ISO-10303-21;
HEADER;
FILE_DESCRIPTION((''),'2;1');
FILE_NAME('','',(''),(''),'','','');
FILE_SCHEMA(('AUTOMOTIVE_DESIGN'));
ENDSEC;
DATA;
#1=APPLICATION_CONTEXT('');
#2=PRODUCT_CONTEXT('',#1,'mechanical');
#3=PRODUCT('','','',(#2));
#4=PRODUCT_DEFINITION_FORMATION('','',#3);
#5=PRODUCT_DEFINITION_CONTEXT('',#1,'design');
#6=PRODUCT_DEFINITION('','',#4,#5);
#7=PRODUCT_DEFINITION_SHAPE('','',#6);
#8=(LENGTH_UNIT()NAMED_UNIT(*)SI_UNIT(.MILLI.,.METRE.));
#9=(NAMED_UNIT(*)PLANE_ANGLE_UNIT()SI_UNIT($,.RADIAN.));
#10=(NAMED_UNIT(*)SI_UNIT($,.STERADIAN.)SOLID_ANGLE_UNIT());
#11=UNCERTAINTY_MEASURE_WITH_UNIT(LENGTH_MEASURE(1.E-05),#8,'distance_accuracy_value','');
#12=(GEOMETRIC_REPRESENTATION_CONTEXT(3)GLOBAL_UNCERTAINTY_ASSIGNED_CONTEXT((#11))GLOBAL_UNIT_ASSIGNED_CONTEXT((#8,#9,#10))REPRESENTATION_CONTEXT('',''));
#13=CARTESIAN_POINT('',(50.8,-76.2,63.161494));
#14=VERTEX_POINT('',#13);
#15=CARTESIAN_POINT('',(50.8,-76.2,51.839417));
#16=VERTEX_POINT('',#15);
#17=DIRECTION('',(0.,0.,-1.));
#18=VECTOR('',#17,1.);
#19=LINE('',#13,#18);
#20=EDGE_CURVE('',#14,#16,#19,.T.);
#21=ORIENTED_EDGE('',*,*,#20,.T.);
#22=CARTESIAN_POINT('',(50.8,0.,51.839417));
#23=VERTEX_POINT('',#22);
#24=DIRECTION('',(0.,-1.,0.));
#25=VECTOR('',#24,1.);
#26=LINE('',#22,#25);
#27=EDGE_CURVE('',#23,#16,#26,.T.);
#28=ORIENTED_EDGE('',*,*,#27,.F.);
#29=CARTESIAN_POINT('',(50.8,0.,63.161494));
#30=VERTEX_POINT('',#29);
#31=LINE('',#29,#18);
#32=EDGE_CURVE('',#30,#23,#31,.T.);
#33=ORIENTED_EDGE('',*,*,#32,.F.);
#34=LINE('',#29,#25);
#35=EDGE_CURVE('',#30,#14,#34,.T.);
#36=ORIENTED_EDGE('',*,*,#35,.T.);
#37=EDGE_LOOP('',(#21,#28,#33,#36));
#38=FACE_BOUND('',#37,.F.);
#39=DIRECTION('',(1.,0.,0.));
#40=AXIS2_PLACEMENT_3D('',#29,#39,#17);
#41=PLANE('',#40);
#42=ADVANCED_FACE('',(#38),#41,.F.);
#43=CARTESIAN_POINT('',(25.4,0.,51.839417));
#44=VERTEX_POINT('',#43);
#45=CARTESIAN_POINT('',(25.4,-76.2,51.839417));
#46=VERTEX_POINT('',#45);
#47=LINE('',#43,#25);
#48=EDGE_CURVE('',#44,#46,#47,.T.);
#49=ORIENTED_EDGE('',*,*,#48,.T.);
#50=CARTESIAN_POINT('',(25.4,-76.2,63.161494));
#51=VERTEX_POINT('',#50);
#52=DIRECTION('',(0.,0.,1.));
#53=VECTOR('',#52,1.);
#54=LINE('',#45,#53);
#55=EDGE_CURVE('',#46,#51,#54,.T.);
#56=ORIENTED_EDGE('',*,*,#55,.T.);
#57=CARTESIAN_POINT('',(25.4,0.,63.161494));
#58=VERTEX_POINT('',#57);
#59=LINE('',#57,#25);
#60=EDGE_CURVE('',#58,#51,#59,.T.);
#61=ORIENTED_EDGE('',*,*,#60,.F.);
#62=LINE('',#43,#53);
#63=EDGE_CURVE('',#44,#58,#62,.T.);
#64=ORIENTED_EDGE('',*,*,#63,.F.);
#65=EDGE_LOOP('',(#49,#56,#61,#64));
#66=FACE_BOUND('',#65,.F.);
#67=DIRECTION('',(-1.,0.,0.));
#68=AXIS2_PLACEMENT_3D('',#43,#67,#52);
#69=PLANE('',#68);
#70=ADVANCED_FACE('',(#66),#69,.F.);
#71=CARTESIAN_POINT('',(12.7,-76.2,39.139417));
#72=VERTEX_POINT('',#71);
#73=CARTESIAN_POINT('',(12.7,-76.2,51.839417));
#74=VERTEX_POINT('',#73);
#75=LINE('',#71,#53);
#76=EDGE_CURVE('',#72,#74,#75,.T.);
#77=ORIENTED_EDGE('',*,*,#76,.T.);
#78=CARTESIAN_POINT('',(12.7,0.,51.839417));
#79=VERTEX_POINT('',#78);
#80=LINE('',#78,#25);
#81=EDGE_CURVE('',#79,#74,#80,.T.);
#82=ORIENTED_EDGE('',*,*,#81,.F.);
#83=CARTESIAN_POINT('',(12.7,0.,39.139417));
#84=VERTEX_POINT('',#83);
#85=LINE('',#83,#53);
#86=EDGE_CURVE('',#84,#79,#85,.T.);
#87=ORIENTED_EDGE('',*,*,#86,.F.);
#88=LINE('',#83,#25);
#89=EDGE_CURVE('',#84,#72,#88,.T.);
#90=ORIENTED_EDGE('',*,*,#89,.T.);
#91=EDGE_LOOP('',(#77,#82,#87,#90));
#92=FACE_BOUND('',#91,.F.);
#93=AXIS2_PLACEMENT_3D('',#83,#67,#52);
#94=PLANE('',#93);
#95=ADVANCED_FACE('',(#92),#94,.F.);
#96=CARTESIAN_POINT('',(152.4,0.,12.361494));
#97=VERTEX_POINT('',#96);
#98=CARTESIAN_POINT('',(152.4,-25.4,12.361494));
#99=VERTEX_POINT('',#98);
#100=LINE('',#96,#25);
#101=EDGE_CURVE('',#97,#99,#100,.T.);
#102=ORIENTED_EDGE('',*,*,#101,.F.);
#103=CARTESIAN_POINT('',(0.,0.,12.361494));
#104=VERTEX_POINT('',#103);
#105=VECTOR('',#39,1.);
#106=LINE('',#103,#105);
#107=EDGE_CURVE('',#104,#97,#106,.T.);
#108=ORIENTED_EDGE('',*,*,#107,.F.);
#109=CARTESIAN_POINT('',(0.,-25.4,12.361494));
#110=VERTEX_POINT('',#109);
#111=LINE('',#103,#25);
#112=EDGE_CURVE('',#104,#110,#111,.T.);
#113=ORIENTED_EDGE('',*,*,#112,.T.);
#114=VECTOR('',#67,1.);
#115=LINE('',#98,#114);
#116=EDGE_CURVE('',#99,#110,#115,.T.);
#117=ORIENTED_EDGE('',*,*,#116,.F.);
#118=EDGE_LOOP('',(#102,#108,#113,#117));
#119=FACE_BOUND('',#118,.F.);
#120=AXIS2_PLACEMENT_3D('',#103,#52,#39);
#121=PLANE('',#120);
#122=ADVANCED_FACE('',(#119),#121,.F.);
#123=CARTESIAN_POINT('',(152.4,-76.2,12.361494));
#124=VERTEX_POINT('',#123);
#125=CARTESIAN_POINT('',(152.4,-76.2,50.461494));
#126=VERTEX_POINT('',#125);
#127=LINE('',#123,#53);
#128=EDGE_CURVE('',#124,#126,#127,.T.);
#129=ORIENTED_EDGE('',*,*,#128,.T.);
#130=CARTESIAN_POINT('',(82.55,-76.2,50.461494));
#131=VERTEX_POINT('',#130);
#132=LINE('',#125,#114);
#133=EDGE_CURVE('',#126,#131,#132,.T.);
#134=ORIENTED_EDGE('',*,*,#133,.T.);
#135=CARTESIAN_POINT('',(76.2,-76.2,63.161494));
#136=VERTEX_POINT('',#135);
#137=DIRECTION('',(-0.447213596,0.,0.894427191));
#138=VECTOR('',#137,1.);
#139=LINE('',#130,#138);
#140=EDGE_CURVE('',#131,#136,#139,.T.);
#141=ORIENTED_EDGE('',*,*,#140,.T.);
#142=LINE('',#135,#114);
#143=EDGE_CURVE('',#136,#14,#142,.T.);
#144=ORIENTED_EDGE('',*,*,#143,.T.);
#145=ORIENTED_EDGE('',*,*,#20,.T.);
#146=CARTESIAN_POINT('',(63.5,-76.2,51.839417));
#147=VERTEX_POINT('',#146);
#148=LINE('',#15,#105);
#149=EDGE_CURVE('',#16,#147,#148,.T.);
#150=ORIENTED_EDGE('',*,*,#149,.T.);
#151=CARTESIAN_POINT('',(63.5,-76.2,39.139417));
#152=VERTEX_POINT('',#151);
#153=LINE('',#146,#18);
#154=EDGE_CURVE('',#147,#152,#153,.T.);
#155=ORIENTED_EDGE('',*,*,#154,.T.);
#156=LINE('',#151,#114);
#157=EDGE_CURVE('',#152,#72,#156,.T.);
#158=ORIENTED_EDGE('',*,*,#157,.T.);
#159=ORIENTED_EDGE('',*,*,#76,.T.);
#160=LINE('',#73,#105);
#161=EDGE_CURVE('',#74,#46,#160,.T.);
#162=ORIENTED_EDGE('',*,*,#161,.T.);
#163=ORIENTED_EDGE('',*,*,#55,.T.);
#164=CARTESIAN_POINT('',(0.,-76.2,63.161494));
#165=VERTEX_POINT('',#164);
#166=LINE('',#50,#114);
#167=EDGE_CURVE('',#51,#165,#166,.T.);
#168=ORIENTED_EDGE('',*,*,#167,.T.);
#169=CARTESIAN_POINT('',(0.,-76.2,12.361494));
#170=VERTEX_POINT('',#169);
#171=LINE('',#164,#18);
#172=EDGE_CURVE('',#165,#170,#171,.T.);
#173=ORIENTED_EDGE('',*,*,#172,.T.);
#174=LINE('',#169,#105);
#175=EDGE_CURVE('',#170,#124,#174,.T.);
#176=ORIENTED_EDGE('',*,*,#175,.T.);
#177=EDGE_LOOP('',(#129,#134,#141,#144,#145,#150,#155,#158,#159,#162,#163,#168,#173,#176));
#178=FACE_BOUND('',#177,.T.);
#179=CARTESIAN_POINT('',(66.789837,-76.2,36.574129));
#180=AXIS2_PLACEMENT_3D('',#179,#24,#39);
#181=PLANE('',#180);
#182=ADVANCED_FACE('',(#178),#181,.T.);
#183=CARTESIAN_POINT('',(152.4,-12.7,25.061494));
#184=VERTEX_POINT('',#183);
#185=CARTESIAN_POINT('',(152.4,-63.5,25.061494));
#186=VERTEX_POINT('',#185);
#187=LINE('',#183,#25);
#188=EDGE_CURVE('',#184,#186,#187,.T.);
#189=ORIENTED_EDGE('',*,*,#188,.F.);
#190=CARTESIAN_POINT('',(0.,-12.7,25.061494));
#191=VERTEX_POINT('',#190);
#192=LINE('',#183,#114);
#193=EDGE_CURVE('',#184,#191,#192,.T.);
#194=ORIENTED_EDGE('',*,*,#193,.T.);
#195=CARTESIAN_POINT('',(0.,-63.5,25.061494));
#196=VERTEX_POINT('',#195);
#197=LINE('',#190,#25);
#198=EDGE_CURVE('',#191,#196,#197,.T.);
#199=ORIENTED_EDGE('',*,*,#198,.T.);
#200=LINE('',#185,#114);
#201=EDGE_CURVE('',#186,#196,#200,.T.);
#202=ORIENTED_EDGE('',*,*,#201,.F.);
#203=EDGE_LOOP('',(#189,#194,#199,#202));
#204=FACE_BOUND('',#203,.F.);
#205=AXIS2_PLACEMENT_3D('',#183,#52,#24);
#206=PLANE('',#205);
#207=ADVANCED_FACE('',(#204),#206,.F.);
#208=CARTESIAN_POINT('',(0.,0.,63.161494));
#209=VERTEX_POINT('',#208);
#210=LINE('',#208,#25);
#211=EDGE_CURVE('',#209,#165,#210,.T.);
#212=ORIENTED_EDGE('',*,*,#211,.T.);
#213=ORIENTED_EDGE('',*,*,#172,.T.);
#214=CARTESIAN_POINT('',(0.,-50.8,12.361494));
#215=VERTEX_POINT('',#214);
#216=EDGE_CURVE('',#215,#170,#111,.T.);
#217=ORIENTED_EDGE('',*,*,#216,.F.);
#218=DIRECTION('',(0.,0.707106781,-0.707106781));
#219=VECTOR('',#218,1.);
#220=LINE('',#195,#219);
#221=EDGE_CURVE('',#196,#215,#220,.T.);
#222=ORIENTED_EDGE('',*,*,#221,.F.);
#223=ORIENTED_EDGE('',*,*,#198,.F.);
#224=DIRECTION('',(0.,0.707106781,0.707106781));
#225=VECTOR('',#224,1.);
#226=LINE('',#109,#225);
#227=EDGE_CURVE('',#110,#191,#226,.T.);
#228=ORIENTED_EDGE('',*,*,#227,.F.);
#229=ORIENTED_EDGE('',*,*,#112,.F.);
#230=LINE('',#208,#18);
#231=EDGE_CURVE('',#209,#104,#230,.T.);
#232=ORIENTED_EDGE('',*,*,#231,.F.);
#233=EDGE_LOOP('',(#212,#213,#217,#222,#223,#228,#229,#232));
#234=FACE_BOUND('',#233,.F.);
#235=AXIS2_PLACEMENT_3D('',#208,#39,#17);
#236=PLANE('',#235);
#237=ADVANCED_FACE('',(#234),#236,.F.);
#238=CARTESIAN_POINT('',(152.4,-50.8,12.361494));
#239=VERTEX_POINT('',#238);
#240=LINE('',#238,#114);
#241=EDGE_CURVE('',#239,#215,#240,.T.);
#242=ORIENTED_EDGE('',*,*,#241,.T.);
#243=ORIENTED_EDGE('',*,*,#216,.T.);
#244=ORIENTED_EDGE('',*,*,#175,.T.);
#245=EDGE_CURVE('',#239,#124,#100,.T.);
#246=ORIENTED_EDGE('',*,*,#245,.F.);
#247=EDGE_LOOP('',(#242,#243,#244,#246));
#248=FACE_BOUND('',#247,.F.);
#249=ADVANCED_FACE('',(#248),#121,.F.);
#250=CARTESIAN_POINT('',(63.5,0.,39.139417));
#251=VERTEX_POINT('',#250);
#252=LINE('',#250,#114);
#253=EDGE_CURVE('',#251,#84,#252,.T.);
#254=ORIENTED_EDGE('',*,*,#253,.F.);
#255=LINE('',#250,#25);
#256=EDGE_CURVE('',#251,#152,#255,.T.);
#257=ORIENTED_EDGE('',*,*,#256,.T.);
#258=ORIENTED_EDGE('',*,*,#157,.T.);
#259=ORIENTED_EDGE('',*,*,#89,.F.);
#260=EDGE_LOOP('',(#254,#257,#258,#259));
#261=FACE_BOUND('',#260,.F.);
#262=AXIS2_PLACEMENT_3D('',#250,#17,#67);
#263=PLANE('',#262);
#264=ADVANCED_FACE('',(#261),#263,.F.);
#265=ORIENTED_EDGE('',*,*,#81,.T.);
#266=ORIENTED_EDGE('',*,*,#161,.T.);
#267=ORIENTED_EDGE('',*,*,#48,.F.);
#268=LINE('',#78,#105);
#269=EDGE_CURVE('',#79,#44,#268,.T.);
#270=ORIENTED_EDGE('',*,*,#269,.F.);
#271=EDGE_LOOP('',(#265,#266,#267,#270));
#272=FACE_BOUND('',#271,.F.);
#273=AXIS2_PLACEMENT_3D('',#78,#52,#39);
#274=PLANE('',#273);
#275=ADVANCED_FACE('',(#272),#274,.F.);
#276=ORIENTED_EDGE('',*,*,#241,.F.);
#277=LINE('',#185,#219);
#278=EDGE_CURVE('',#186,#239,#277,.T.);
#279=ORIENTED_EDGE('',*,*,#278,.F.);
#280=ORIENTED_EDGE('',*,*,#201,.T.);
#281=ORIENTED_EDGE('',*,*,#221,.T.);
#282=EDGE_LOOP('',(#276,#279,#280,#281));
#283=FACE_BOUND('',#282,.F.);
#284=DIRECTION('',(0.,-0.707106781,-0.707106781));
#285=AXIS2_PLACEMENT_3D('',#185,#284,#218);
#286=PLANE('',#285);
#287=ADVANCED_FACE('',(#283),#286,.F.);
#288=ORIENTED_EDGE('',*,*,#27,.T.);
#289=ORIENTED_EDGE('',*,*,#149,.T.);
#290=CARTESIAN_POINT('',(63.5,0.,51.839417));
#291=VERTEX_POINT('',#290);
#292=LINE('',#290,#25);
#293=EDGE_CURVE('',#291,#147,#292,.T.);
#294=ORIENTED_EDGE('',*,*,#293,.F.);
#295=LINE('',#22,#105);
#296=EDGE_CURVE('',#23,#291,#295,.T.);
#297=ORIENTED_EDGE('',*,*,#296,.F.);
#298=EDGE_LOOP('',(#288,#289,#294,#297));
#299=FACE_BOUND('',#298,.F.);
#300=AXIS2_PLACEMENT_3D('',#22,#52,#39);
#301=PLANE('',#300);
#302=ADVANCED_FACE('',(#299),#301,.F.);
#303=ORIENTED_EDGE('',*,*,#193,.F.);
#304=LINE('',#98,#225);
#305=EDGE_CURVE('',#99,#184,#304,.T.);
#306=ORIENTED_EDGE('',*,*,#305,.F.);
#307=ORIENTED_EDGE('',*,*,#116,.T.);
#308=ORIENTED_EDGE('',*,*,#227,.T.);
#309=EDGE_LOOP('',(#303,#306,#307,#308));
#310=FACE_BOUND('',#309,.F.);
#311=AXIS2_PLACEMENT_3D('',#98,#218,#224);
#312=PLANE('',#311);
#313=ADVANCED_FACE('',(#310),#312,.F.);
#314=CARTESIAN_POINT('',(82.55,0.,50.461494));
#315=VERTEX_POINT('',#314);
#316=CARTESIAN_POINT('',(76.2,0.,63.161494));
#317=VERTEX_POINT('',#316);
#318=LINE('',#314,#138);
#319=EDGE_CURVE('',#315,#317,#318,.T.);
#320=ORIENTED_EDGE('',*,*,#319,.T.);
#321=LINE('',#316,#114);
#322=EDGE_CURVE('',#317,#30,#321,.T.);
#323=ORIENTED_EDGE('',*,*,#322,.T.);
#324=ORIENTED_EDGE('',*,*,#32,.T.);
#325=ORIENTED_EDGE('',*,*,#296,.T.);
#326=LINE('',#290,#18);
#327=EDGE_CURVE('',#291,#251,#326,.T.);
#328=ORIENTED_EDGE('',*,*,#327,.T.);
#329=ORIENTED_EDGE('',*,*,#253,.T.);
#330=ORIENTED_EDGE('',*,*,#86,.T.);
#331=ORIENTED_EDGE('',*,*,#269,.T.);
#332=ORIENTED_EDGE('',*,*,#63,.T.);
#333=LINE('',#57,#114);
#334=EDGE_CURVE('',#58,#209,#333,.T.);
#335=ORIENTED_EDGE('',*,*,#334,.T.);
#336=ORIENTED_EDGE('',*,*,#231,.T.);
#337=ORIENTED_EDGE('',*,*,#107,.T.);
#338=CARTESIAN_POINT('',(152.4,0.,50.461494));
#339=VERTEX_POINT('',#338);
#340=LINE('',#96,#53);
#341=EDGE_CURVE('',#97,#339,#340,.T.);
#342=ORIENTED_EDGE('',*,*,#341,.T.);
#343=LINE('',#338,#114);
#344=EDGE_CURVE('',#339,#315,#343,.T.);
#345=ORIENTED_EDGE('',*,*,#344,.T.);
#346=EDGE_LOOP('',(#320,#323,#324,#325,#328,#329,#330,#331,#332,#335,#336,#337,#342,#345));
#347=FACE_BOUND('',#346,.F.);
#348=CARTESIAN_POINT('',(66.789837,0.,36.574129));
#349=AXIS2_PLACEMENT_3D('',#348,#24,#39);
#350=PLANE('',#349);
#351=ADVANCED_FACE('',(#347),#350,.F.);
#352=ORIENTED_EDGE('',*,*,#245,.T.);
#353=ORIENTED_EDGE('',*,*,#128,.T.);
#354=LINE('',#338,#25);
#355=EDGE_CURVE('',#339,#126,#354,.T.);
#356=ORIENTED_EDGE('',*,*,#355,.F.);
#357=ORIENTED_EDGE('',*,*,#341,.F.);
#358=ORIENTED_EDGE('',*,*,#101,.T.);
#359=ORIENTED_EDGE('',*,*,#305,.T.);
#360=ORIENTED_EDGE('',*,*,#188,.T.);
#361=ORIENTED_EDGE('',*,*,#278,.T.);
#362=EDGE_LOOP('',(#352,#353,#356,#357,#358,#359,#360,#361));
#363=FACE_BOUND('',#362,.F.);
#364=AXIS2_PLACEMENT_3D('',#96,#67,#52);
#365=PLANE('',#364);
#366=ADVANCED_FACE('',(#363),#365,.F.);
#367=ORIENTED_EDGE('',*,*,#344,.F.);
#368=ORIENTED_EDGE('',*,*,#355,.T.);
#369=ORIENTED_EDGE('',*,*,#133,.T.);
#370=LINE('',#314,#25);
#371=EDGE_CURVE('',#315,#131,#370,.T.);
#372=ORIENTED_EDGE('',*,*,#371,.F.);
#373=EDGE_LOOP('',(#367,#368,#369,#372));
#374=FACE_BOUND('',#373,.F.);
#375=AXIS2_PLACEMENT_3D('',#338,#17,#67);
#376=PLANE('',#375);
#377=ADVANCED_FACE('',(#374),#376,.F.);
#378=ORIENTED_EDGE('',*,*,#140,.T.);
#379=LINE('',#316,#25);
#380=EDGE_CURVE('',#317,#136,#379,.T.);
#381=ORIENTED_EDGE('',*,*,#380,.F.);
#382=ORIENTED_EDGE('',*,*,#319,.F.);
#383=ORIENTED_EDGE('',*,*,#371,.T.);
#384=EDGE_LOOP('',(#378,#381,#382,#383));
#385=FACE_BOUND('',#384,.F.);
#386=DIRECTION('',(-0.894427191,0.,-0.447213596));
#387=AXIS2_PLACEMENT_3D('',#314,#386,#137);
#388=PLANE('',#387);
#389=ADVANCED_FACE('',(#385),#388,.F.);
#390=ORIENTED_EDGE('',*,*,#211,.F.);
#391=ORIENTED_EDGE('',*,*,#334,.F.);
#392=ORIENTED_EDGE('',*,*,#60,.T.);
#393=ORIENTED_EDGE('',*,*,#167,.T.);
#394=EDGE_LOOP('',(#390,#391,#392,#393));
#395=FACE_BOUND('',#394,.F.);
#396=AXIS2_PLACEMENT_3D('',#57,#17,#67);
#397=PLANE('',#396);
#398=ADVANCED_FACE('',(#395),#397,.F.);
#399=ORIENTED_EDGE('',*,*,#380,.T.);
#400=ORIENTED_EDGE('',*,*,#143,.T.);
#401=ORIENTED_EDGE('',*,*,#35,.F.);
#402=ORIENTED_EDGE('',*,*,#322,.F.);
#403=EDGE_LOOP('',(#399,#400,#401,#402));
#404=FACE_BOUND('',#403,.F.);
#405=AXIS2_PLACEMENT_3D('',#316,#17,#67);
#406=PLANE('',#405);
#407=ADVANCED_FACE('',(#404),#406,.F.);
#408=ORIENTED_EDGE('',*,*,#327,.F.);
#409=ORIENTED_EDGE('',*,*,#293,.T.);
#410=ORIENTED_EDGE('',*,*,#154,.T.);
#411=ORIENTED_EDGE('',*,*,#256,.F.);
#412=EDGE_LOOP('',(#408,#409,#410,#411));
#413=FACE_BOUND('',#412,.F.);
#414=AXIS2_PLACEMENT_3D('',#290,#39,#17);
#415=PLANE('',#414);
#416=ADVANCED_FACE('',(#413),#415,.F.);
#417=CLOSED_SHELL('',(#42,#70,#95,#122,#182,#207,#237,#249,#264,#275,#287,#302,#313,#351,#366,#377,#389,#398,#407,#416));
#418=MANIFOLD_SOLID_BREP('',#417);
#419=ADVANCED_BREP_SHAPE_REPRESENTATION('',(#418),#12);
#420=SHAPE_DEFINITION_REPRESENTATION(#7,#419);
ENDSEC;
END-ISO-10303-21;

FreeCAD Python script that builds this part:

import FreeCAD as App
import Part
import Sketcher

V = App.Vector
Q = App.Units.Quantity


def add_polygon(sketch, points):
    """Adds a closed chain of lines whose ends are joined by coincident constraints."""
    first, n = sketch.GeometryCount, len(points)
    for a, b in zip(points, points[1:] + points[:1]):
        sketch.addGeometry(Part.LineSegment(App.Vector(*a, 0), App.Vector(*b, 0)), False)
    for i in range(n):
        sketch.addConstraint(Sketcher.Constraint("Coincident", first + i, 2, first + (i + 1) % n, 1))

doc = App.newDocument("Part")
body = doc.addObject("PartDesign::Body", "Body")

# Sketch on XZ plane
sketch1 = doc.addObject("Sketcher::SketchObject", "Sketch")
body.addObject(sketch1)
sketch1.AttachmentSupport = (doc.XZ_Plane, [""])
sketch1.MapMode = "FlatFace"
add_polygon(sketch1, [(25, 63), (0, 63), (0, 12), (152, 12), (152, 50), (83, 50), (76, 63), (51, 63), (51, 52), (64, 52), (64, 39), (13, 39), (13, 52), (25, 52)])  # lines 0-13
sketch1.addConstraint(Sketcher.Constraint("Horizontal", 0))
sketch1.addConstraint(Sketcher.Constraint("Vertical", 1))
sketch1.addConstraint(Sketcher.Constraint("Horizontal", 2))
sketch1.addConstraint(Sketcher.Constraint("Vertical", 3))
sketch1.addConstraint(Sketcher.Constraint("Horizontal", 4))
sketch1.addConstraint(Sketcher.Constraint("Horizontal", 6))
sketch1.addConstraint(Sketcher.Constraint("Vertical", 7))
sketch1.addConstraint(Sketcher.Constraint("Horizontal", 8))
sketch1.addConstraint(Sketcher.Constraint("Vertical", 9))
sketch1.addConstraint(Sketcher.Constraint("Horizontal", 10))
sketch1.addConstraint(Sketcher.Constraint("Vertical", 11))
sketch1.addConstraint(Sketcher.Constraint("Horizontal", 12))
sketch1.addConstraint(Sketcher.Constraint("Vertical", 13))
sketch1.addConstraint(Sketcher.Constraint("PointOnObject", 0, 2, -2))
sketch1.addConstraint(Sketcher.Constraint("Horizontal", 0, 2, 5, 2))
sketch1.addConstraint(Sketcher.Constraint("Horizontal", 8, 2, 11, 2))
sketch1.addConstraint(Sketcher.Constraint("Equal", 0, 6))
sketch1.addConstraint(Sketcher.Constraint("Equal", 8, 12))
sketch1.addConstraint(Sketcher.Constraint("Equal", 10, 1))
sketch1.addConstraint(Sketcher.Constraint("Equal", 12, 9))
sketch1.addConstraint(Sketcher.Constraint("DistanceX", 0, 2, 0, 1, Q("1 in")))
sketch1.addConstraint(Sketcher.Constraint("DistanceX", 2, 1, 2, 2, Q("6 in")))
sketch1.addConstraint(Sketcher.Constraint("DistanceX", 10, 2, 10, 1, Q("2 in")))
sketch1.addConstraint(Sketcher.Constraint("DistanceX", 8, 1, 8, 2, Q("0.5 in")))
sketch1.addConstraint(Sketcher.Constraint("DistanceY", 3, 1, 3, 2, Q("1.5 in")))
sketch1.addConstraint(Sketcher.Constraint("DistanceX", 4, 2, 4, 1, Q("2.75 in")))
sketch1.addConstraint(Sketcher.Constraint("DistanceY", 7, 2, 7, 1, Q("11.322077 mm")))
sketch1.addConstraint(Sketcher.Constraint("DistanceY", -1, 1, 0, 2, Q("63.161494 mm")))
pad1 = doc.addObject("PartDesign::Pad", "Pad")
body.addObject(pad1)
pad1.Profile = sketch1
pad1.Length = Q("3 in")

# Sketch on YZ plane
sketch2 = doc.addObject("Sketcher::SketchObject", "Sketch001")
body.addObject(sketch2)
sketch2.AttachmentSupport = (doc.YZ_Plane, [""])
sketch2.MapMode = "FlatFace"
sketch2.AttachmentOffset = App.Placement(V(0, 0, 6 * 25.4), App.Rotation())
add_polygon(sketch2, [(-64, 25), (-51, 12), (-25, 12), (-13, 25)])  # lines 0-3
sketch2.addConstraint(Sketcher.Constraint("Horizontal", 1))
sketch2.addConstraint(Sketcher.Constraint("Horizontal", 3))
sketch2.addConstraint(Sketcher.Constraint("Perpendicular", 0, 2))
sketch2.addConstraint(Sketcher.Constraint("Equal", 0, 2))
sketch2.addConstraint(Sketcher.Constraint("DistanceX", 1, 1, 1, 2, Q("1 in")))
sketch2.addConstraint(Sketcher.Constraint("DistanceX", 3, 2, 3, 1, Q("2 in")))
sketch2.addConstraint(Sketcher.Constraint("DistanceX", 0, 2, -1, 1, Q("2 in")))
sketch2.addConstraint(Sketcher.Constraint("DistanceY", -1, 1, 0, 2, Q("12.361494 mm")))
pocket1 = doc.addObject("PartDesign::Pocket", "Pocket")
body.addObject(pocket1)
pocket1.Profile = sketch2
pocket1.Length = Q("6 in")

doc.recompute()
